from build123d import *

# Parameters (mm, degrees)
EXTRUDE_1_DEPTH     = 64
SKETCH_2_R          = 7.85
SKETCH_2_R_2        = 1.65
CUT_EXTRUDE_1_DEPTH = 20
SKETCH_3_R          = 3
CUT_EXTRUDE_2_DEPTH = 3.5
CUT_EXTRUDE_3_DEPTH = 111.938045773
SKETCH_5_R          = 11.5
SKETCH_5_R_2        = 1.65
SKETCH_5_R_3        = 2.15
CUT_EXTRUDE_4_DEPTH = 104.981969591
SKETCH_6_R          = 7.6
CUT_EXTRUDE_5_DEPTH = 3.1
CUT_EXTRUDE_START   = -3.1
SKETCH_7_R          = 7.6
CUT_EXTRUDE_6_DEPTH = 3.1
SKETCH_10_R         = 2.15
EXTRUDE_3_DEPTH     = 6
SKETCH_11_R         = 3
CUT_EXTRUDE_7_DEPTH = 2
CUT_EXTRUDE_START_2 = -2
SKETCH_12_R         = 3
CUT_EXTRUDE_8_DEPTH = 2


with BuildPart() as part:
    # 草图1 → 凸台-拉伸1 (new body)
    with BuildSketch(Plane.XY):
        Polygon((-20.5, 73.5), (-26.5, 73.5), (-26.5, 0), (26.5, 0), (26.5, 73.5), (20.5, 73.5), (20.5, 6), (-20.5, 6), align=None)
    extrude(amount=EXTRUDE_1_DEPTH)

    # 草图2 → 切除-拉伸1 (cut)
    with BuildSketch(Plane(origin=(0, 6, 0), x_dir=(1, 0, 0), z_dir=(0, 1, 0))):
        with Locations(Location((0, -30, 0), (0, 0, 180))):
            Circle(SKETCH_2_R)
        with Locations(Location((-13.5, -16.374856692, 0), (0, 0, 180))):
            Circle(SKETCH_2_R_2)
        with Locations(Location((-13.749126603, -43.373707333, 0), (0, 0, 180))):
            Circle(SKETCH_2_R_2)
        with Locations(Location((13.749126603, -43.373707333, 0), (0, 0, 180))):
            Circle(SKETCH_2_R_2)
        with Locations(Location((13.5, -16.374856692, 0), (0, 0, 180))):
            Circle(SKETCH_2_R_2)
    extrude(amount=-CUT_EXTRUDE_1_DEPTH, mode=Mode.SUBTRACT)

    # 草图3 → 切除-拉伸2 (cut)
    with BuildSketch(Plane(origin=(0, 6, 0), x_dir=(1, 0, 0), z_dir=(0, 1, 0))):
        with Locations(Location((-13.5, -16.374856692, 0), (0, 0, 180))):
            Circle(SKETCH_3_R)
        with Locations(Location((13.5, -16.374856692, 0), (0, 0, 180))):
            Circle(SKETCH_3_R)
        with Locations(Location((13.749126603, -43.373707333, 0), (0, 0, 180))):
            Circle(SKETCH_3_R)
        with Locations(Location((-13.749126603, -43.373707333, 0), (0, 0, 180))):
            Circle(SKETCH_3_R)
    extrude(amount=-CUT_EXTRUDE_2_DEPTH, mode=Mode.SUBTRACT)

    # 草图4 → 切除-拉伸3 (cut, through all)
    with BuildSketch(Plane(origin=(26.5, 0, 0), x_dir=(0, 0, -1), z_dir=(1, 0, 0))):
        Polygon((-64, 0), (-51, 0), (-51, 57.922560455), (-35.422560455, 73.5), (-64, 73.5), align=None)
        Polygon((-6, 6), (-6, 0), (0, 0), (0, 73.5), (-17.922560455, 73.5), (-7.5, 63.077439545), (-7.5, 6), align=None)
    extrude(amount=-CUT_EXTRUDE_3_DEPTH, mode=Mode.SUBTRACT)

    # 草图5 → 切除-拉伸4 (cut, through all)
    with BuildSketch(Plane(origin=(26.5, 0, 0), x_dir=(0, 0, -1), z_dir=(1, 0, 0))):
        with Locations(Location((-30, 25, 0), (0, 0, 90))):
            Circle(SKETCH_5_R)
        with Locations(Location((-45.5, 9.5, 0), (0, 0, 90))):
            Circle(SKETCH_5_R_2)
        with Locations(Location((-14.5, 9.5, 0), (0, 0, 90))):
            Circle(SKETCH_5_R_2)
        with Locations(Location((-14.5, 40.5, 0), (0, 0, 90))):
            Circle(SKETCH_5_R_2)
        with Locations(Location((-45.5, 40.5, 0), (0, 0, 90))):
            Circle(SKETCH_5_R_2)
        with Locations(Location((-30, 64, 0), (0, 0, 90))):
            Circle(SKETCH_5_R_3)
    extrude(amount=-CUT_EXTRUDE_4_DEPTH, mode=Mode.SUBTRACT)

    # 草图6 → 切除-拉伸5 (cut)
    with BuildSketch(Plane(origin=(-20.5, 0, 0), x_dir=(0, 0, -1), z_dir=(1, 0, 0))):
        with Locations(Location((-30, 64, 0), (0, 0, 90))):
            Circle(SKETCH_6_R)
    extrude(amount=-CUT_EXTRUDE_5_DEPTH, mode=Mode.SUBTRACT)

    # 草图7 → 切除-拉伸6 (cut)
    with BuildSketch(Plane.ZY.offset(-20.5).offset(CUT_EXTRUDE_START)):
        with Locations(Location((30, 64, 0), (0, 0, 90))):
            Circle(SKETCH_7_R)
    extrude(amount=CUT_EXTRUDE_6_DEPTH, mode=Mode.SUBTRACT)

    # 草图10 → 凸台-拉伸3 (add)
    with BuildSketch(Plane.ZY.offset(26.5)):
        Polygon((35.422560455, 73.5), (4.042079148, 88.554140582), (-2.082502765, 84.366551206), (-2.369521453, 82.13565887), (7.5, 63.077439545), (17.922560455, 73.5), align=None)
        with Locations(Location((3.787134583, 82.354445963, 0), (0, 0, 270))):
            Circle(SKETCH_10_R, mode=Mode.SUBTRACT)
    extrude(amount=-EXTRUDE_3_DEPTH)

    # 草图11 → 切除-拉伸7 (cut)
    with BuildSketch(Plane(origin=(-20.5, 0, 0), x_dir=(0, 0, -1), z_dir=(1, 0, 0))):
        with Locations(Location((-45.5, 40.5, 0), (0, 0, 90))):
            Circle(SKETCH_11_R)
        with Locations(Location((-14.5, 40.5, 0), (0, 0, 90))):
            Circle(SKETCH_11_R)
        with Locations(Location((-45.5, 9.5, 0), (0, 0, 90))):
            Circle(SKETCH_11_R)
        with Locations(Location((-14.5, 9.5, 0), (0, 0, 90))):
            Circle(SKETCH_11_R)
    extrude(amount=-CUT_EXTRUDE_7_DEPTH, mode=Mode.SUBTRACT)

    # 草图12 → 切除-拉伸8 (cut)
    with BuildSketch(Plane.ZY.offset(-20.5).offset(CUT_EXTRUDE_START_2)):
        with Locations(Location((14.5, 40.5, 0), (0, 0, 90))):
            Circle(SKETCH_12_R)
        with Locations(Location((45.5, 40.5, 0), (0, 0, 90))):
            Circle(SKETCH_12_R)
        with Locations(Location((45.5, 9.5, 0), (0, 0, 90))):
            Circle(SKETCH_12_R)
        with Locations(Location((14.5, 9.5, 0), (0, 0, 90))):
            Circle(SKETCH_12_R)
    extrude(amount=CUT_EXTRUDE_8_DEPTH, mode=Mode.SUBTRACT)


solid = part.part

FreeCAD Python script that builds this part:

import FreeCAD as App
import Part
import Sketcher

V = App.Vector
Q = App.Units.Quantity

doc = App.newDocument("Part")
body = doc.addObject("PartDesign::Body", "Body")

# Sketch on XY plane
sketch1 = body.newObject("Sketcher::SketchObject", "Sketch")
sketch1.AttachmentSupport = (doc.getObject("XY_Plane"), [""])
sketch1.MapMode = "FlatFace"
sketch1.addGeometry([
    Part.LineSegment(V(-20, 74, 0), V(-26, 74, 0)),  # 0
    Part.LineSegment(V(-26, 74, 0), V(-26, 0, 0)),  # 1
    Part.LineSegment(V(-26, 0, 0), V(26, 0, 0)),  # 2
    Part.LineSegment(V(26, 0, 0), V(26, 74, 0)),  # 3
    Part.LineSegment(V(26, 74, 0), V(20, 74, 0)),  # 4
    Part.LineSegment(V(20, 74, 0), V(20, 6, 0)),  # 5
    Part.LineSegment(V(20, 6, 0), V(-20, 6, 0)),  # 6
    Part.LineSegment(V(-20, 6, 0), V(-20, 74, 0)),  # 7
], False)
sketch1.addConstraint([
    Sketcher.Constraint("Coincident", 0, 2, 1, 1),
    Sketcher.Constraint("Coincident", 1, 2, 2, 1),
    Sketcher.Constraint("Coincident", 2, 2, 3, 1),
    Sketcher.Constraint("Coincident", 3, 2, 4, 1),
    Sketcher.Constraint("Coincident", 4, 2, 5, 1),
    Sketcher.Constraint("Coincident", 5, 2, 6, 1),
    Sketcher.Constraint("Coincident", 6, 2, 7, 1),
    Sketcher.Constraint("Coincident", 7, 2, 0, 1),
    Sketcher.Constraint("Horizontal", 0),
    Sketcher.Constraint("Vertical", 1),
    Sketcher.Constraint("Horizontal", 2),
    Sketcher.Constraint("Vertical", 3),
    Sketcher.Constraint("Horizontal", 4),
    Sketcher.Constraint("Vertical", 5),
    Sketcher.Constraint("Horizontal", 6),
    Sketcher.Constraint("Vertical", 7),
    Sketcher.Constraint("Symmetric", 1, 2, 2, 2, -1, 1),
    Sketcher.Constraint("Symmetric", 4, 2, 7, 2, -2),
    Sketcher.Constraint("DistanceX", 0, 2, 0, 1, 6.0),
    Sketcher.Constraint("DistanceX", 2, 1, 2, 2, 53.0),
    Sketcher.Constraint("DistanceY", 1, 2, 1, 1, 73.5),
    Sketcher.Constraint("DistanceY", 5, 2, 5, 1, 67.5),
])
pad1 = body.newObject("PartDesign::Pad", "Pad")
pad1.Profile = sketch1
pad1.Length = 64

# Sketch on XZ plane
sketch2 = body.newObject("Sketcher::SketchObject", "Sketch001")
sketch2.AttachmentSupport = (doc.getObject("XZ_Plane"), [""])
sketch2.MapMode = "FlatFace"
sketch2.AttachmentOffset = App.Placement(V(0, 0, -6), App.Rotation())
sketch2.addGeometry([
    Part.Circle(V(0, 30, 0), V(0, 0, 1), 7.8),  # 0
    Part.Circle(V(-13.5, 16.4, 0), V(0, 0, 1), 1.6),  # 1
    Part.Circle(V(-13.7, 43.4, 0), V(0, 0, 1), 1.6),  # 2
    Part.Circle(V(13.7, 43.4, 0), V(0, 0, 1), 1.6),  # 3
    Part.Circle(V(13.5, 16.4, 0), V(0, 0, 1), 1.6),  # 4
], False)
sketch2.addConstraint([
    Sketcher.Constraint("Equal", 1, 2),
    Sketcher.Constraint("Equal", 2, 3),
    Sketcher.Constraint("Equal", 3, 4),
    Sketcher.Constraint("Symmetric", 2, 3, 3, 3, -2),
    Sketcher.Constraint("Symmetric", 1, 3, 4, 3, -2),
    Sketcher.Constraint("PointOnObject", 0, 3, -2),
    Sketcher.Constraint("Diameter", 0, 15.7),
    Sketcher.Constraint("Diameter", 1, 3.3),
    Sketcher.Constraint("DistanceY", -1, 1, 0, 3, 30.0),
    Sketcher.Constraint("DistanceX", 1, 3, 4, 3, 27.0),
    Sketcher.Constraint("DistanceY", 1, 3, 2, 3, 26.998851),
    Sketcher.Constraint("DistanceY", -1, 1, 1, 3, 16.374857),
    Sketcher.Constraint("DistanceX", 2, 3, -1, 1, 13.749127),
])
pocket1 = body.newObject("PartDesign::Pocket", "Pocket")
pocket1.Profile = sketch2
pocket1.Length = 20
pocket1.Reversed = True

# Sketch on XZ plane
sketch3 = body.newObject("Sketcher::SketchObject", "Sketch002")
sketch3.AttachmentSupport = (doc.getObject("XZ_Plane"), [""])
sketch3.MapMode = "FlatFace"
sketch3.AttachmentOffset = App.Placement(V(0, 0, -6), App.Rotation())
sketch3.addGeometry([
    Part.Circle(V(-13.5, 16.4, 0), V(0, 0, 1), 3),
    Part.Circle(V(13.5, 16.4, 0), V(0, 0, 1), 3),
    Part.Circle(V(13.7, 43.4, 0), V(0, 0, 1), 3),
    Part.Circle(V(-13.7, 43.4, 0), V(0, 0, 1), 3),
], False)
sketch3.addConstraint([
    Sketcher.Constraint("Equal", 0, 1),
    Sketcher.Constraint("Equal", 1, 2),
    Sketcher.Constraint("Equal", 2, 3),
    Sketcher.Constraint("Symmetric", 0, 3, 1, 3, -2),
    Sketcher.Constraint("Symmetric", 2, 3, 3, 3, -2),
    Sketcher.Constraint("Diameter", 0, 6.0),
    Sketcher.Constraint("DistanceX", 0, 3, 1, 3, 27.0),
    Sketcher.Constraint("DistanceY", 1, 3, 2, 3, 26.998851),
    Sketcher.Constraint("DistanceY", -1, 1, 0, 3, 16.374857),
    Sketcher.Constraint("DistanceX", -1, 1, 2, 3, 13.749127),
])
pocket2 = body.newObject("PartDesign::Pocket", "Pocket001")
pocket2.Profile = sketch3
pocket2.Length = 3.5
pocket2.Reversed = True

# Sketch on YZ plane
sketch4 = body.newObject("Sketcher::SketchObject", "Sketch003")
sketch4.AttachmentSupport = (doc.getObject("YZ_Plane"), [""])
sketch4.MapMode = "FlatFace"
sketch4.AttachmentOffset = App.Placement(V(0, 0, 26.5), App.Rotation())
sketch4.addGeometry([
    Part.LineSegment(V(0, 64, 0), V(0, 51, 0)),  # 0
    Part.LineSegment(V(0, 51, 0), V(57.9, 51, 0)),  # 1
    Part.LineSegment(V(57.9, 51, 0), V(73.5, 35.4, 0)),  # 2
    Part.LineSegment(V(73.5, 35.4, 0), V(73.5, 64, 0)),  # 3
    Part.LineSegment(V(73.5, 64, 0), V(0, 64, 0)),  # 4
    Part.LineSegment(V(6, 6, 0), V(0, 6, 0)),  # 5
    Part.LineSegment(V(0, 6, 0), V(0, 0, 0)),  # 6
    Part.LineSegment(V(0, 0, 0), V(73.5, 0, 0)),  # 7
    Part.LineSegment(V(73.5, 0, 0), V(73.5, 17.9, 0)),  # 8
    Part.LineSegment(V(73.5, 17.9, 0), V(63.1, 7.5, 0)),  # 9
    Part.LineSegment(V(63.1, 7.5, 0), V(6, 7.5, 0)),  # 10
    Part.LineSegment(V(6, 7.5, 0), V(6, 6, 0)),  # 11
], False)
sketch4.addConstraint([
    Sketcher.Constraint("Coincident", 0, 2, 1, 1),
    Sketcher.Constraint("Coincident", 1, 2, 2, 1),
    Sketcher.Constraint("Coincident", 2, 2, 3, 1),
    Sketcher.Constraint("Coincident", 3, 2, 4, 1),
    Sketcher.Constraint("Coincident", 4, 2, 0, 1),
    Sketcher.Constraint("Coincident", 5, 2, 6, 1),
    Sketcher.Constraint("Coincident", 6, 2, 7, 1),
    Sketcher.Constraint("Coincident", 7, 2, 8, 1),
    Sketcher.Constraint("Coincident", 8, 2, 9, 1),
    Sketcher.Constraint("Coincident", 9, 2, 10, 1),
    Sketcher.Constraint("Coincident", 10, 2, 11, 1),
    Sketcher.Constraint("Coincident", 11, 2, 5, 1),
    Sketcher.Constraint("Vertical", 0),
    Sketcher.Constraint("Horizontal", 1),
    Sketcher.Constraint("Vertical", 3),
    Sketcher.Constraint("Horizontal", 4),
    Sketcher.Constraint("Horizontal", 5),
    Sketcher.Constraint("Vertical", 6),
    Sketcher.Constraint("Horizontal", 7),
    Sketcher.Constraint("Vertical", 8),
    Sketcher.Constraint("Horizontal", 10),
    Sketcher.Constraint("Vertical", 11),
    Sketcher.Constraint("Coincident", 6, 2, -1, 1),
    Sketcher.Constraint("PointOnObject", 0, 2, -2),
    Sketcher.Constraint("Perpendicular", 2, 9),
    Sketcher.Constraint("Vertical", 3, 2, 7, 2),
    Sketcher.Constraint("Equal", 5, 6),
    Sketcher.Constraint("DistanceX", 5, 2, 5, 1, 6.0),
    Sketcher.Constraint("DistanceY", 0, 2, 0, 1, 13.0),
    Sketcher.Constraint("Angle", 2, Q("-45 deg")),
    Sketcher.Constraint("DistanceX", 4, 2, 4, 1, 73.5),
    Sketcher.Constraint("DistanceY", 11, 2, 11, 1, 1.5),
    Sketcher.Constraint("DistanceY", -1, 1, 0, 2, 51.0),
    Sketcher.Constraint("DistanceY", 8, 2, 2, 2, 17.5),
    Sketcher.Constraint("DistanceX", 1, 1, 1, 2, 57.92256),
])
pocket3 = body.newObject("PartDesign::Pocket", "Pocket002")
pocket3.Profile = sketch4
pocket3.Type = "ThroughAll"

# Sketch on YZ plane
sketch5 = body.newObject("Sketcher::SketchObject", "Sketch004")
sketch5.AttachmentSupport = (doc.getObject("YZ_Plane"), [""])
sketch5.MapMode = "FlatFace"
sketch5.AttachmentOffset = App.Placement(V(0, 0, 26.5), App.Rotation())
sketch5.addGeometry([
    Part.Circle(V(25, 30, 0), V(0, 0, 1), 11.5),  # 0
    Part.Circle(V(9.5, 45.5, 0), V(0, 0, 1), 1.6),  # 1
    Part.Circle(V(9.5, 14.5, 0), V(0, 0, 1), 1.6),  # 2
    Part.Circle(V(40.5, 14.5, 0), V(0, 0, 1), 1.6),  # 3
    Part.Circle(V(40.5, 45.5, 0), V(0, 0, 1), 1.6),  # 4
    Part.Circle(V(64, 30, 0), V(0, 0, 1), 2.1),  # 5
], False)
sketch5.addConstraint([
    Sketcher.Constraint("Equal", 1, 2),
    Sketcher.Constraint("Equal", 2, 3),
    Sketcher.Constraint("Equal", 3, 4),
    Sketcher.Constraint("Horizontal", 2, 3, 3, 3),
    Sketcher.Constraint("Horizontal", 1, 3, 4, 3),
    Sketcher.Constraint("Horizontal", 0, 3, 5, 3),
    Sketcher.Constraint("Vertical", 1, 3, 2, 3),
    Sketcher.Constraint("Vertical", 3, 3, 4, 3),
    Sketcher.Constraint("Diameter", 0, 23.0),
    Sketcher.Constraint("Diameter", 1, 3.3),
    Sketcher.Constraint("Diameter", 5, 4.3),
    Sketcher.Constraint("DistanceX", -1, 1, 0, 3, 25.0),
    Sketcher.Constraint("DistanceY", -1, 1, 0, 3, 30.0),
    Sketcher.Constraint("DistanceX", -1, 1, 5, 3, 64.0),
    Sketcher.Constraint("DistanceY", 2, 3, 1, 3, 31.0),
    Sketcher.Constraint("DistanceX", 2, 3, 3, 3, 31.0),
    Sketcher.Constraint("DistanceX", -1, 1, 1, 3, 9.5),
    Sketcher.Constraint("DistanceY", -1, 1, 1, 3, 45.5),
])
pocket4 = body.newObject("PartDesign::Pocket", "Pocket003")
pocket4.Profile = sketch5
pocket4.Type = "ThroughAll"

# Sketch on YZ plane
sketch6 = body.newObject("Sketcher::SketchObject", "Sketch005")
sketch6.AttachmentSupport = (doc.getObject("YZ_Plane"), [""])
sketch6.MapMode = "FlatFace"
sketch6.AttachmentOffset = App.Placement(V(0, 0, -20.5), App.Rotation())
sketch6.addGeometry(Part.Circle(V(64, 30, 0), V(0, 0, 1), 8), False)
sketch6.addConstraint([
    Sketcher.Constraint("Diameter", 0, 15.2),
    Sketcher.Constraint("DistanceX", -1, 1, 0, 3, 64.0),
    Sketcher.Constraint("DistanceY", -1, 1, 0, 3, 30.0),
])
pocket5 = body.newObject("PartDesign::Pocket", "Pocket004")
pocket5.Profile = sketch6
pocket5.Length = 3.1

# Sketch on YZ plane
sketch7 = body.newObject("Sketcher::SketchObject", "Sketch006")
sketch7.AttachmentSupport = (doc.getObject("YZ_Plane"), [""])
sketch7.MapMode = "FlatFace"
sketch7.AttachmentOffset = App.Placement(V(0, 0, 23.6), App.Rotation())
sketch7.addGeometry(Part.Circle(V(64, 30, 0), V(0, 0, 1), 8), False)
sketch7.addConstraint([
    Sketcher.Constraint("Diameter", 0, 15.2),
    Sketcher.Constraint("DistanceX", -1, 1, 0, 3, 64.0),
    Sketcher.Constraint("DistanceY", -1, 1, 0, 3, 30.0),
])
pocket6 = body.newObject("PartDesign::Pocket", "Pocket005")
pocket6.Profile = sketch7
pocket6.Length = 3.1

# Sketch on YZ plane
sketch8 = body.newObject("Sketcher::SketchObject", "Sketch007")
sketch8.AttachmentSupport = (doc.getObject("YZ_Plane"), [""])
sketch8.MapMode = "FlatFace"
sketch8.AttachmentOffset = App.Placement(V(0, 0, -26.5), App.Rotation())
sketch8.addGeometry([
    Part.LineSegment(V(73.5, 35.4, 0), V(88.6, 4, 0)),  # 0
    Part.LineSegment(V(88.6, 4, 0), V(84.4, -2.1, 0)),  # 1
    Part.LineSegment(V(84.4, -2.1, 0), V(82.1, -2.4, 0)),  # 2
    Part.LineSegment(V(82.1, -2.4, 0), V(63.1, 7.5, 0)),  # 3
    Part.LineSegment(V(63.1, 7.5, 0), V(73.5, 17.9, 0)),  # 4
    Part.LineSegment(V(73.5, 17.9, 0), V(73.5, 35.4, 0)),  # 5
    Part.Circle(V(82.4, 3.8, 0), V(0, 0, 1), 2.1),  # 6
], False)
sketch8.addConstraint([
    Sketcher.Constraint("Coincident", 0, 2, 1, 1),
    Sketcher.Constraint("Coincident", 1, 2, 2, 1),
    Sketcher.Constraint("Coincident", 2, 2, 3, 1),
    Sketcher.Constraint("Coincident", 3, 2, 4, 1),
    Sketcher.Constraint("Coincident", 4, 2, 5, 1),
    Sketcher.Constraint("Coincident", 5, 2, 0, 1),
    Sketcher.Constraint("Vertical", 5),
    Sketcher.Constraint("Diameter", 6, 4.3),
    Sketcher.Constraint("Angle", 4, Q("45 deg")),
    Sketcher.Constraint("DistanceY", 5, 1, 5, 2, 17.5),
    Sketcher.Constraint("DistanceY", -1, 1, 3, 2, 7.5),
    Sketcher.Constraint("DistanceX", -1, 1, 4, 2, 73.5),
    Sketcher.Constraint("DistanceY", 2, 2, 0, 2, 6.411601),
    Sketcher.Constraint("DistanceX", 3, 2, 0, 2, 25.476701),
    Sketcher.Constraint("Distance", 2, 2.24928),
    Sketcher.Constraint("DistanceX", -1, 1, 0, 2, 88.554141),
    Sketcher.Constraint("DistanceY", -1, 1, 0, 2, 4.042079),
    Sketcher.Constraint("DistanceX", -1, 1, 1, 2, 84.366551),
    Sketcher.Constraint("DistanceX", -1, 1, 2, 2, 82.135659),
    Sketcher.Constraint("DistanceX", -1, 1, 6, 3, 82.354446),
    Sketcher.Constraint("DistanceY", -1, 1, 6, 3, 3.787135),
])
pad2 = body.newObject("PartDesign::Pad", "Pad001")
pad2.Profile = sketch8
pad2.Length = 6

# Sketch on YZ plane
sketch9 = body.newObject("Sketcher::SketchObject", "Sketch008")
sketch9.AttachmentSupport = (doc.getObject("YZ_Plane"), [""])
sketch9.MapMode = "FlatFace"
sketch9.AttachmentOffset = App.Placement(V(0, 0, -20.5), App.Rotation())
sketch9.addGeometry([
    Part.Circle(V(40.5, 45.5, 0), V(0, 0, 1), 3),
    Part.Circle(V(40.5, 14.5, 0), V(0, 0, 1), 3),
    Part.Circle(V(9.5, 45.5, 0), V(0, 0, 1), 3),
    Part.Circle(V(9.5, 14.5, 0), V(0, 0, 1), 3),
], False)
sketch9.addConstraint([
    Sketcher.Constraint("Equal", 0, 1),
    Sketcher.Constraint("Equal", 1, 2),
    Sketcher.Constraint("Equal", 2, 3),
    Sketcher.Constraint("Horizontal", 0, 3, 2, 3),
    Sketcher.Constraint("Horizontal", 1, 3, 3, 3),
    Sketcher.Constraint("Vertical", 0, 3, 1, 3),
    Sketcher.Constraint("Vertical", 2, 3, 3, 3),
    Sketcher.Constraint("Diameter", 0, 6.0),
    Sketcher.Constraint("DistanceY", 1, 3, 0, 3, 31.0),
    Sketcher.Constraint("DistanceX", 2, 3, 0, 3, 31.0),
    Sketcher.Constraint("DistanceX", -1, 1, 0, 3, 40.5),
    Sketcher.Constraint("DistanceY", -1, 1, 0, 3, 45.5),
])
pocket7 = body.newObject("PartDesign::Pocket", "Pocket006")
pocket7.Profile = sketch9
pocket7.Length = 2

# Sketch on YZ plane
sketch10 = body.newObject("Sketcher::SketchObject", "Sketch009")
sketch10.AttachmentSupport = (doc.getObject("YZ_Plane"), [""])
sketch10.MapMode = "FlatFace"
sketch10.AttachmentOffset = App.Placement(V(0, 0, 22.5), App.Rotation())
sketch10.addGeometry([
    Part.Circle(V(40.5, 14.5, 0), V(0, 0, 1), 3),
    Part.Circle(V(40.5, 45.5, 0), V(0, 0, 1), 3),
    Part.Circle(V(9.5, 45.5, 0), V(0, 0, 1), 3),
    Part.Circle(V(9.5, 14.5, 0), V(0, 0, 1), 3),
], False)
sketch10.addConstraint([
    Sketcher.Constraint("Equal", 0, 1),
    Sketcher.Constraint("Equal", 1, 2),
    Sketcher.Constraint("Equal", 2, 3),
    Sketcher.Constraint("Horizontal", 1, 3, 2, 3),
    Sketcher.Constraint("Horizontal", 0, 3, 3, 3),
    Sketcher.Constraint("Vertical", 0, 3, 1, 3),
    Sketcher.Constraint("Vertical", 2, 3, 3, 3),
    Sketcher.Constraint("Diameter", 0, 6.0),
    Sketcher.Constraint("DistanceY", 0, 3, 1, 3, 31.0),
    Sketcher.Constraint("DistanceX", 2, 3, 1, 3, 31.0),
    Sketcher.Constraint("DistanceX", -1, 1, 0, 3, 40.5),
    Sketcher.Constraint("DistanceY", -1, 1, 0, 3, 14.5),
])
pocket8 = body.newObject("PartDesign::Pocket", "Pocket007")
pocket8.Profile = sketch10
pocket8.Length = 2

doc.recompute()
